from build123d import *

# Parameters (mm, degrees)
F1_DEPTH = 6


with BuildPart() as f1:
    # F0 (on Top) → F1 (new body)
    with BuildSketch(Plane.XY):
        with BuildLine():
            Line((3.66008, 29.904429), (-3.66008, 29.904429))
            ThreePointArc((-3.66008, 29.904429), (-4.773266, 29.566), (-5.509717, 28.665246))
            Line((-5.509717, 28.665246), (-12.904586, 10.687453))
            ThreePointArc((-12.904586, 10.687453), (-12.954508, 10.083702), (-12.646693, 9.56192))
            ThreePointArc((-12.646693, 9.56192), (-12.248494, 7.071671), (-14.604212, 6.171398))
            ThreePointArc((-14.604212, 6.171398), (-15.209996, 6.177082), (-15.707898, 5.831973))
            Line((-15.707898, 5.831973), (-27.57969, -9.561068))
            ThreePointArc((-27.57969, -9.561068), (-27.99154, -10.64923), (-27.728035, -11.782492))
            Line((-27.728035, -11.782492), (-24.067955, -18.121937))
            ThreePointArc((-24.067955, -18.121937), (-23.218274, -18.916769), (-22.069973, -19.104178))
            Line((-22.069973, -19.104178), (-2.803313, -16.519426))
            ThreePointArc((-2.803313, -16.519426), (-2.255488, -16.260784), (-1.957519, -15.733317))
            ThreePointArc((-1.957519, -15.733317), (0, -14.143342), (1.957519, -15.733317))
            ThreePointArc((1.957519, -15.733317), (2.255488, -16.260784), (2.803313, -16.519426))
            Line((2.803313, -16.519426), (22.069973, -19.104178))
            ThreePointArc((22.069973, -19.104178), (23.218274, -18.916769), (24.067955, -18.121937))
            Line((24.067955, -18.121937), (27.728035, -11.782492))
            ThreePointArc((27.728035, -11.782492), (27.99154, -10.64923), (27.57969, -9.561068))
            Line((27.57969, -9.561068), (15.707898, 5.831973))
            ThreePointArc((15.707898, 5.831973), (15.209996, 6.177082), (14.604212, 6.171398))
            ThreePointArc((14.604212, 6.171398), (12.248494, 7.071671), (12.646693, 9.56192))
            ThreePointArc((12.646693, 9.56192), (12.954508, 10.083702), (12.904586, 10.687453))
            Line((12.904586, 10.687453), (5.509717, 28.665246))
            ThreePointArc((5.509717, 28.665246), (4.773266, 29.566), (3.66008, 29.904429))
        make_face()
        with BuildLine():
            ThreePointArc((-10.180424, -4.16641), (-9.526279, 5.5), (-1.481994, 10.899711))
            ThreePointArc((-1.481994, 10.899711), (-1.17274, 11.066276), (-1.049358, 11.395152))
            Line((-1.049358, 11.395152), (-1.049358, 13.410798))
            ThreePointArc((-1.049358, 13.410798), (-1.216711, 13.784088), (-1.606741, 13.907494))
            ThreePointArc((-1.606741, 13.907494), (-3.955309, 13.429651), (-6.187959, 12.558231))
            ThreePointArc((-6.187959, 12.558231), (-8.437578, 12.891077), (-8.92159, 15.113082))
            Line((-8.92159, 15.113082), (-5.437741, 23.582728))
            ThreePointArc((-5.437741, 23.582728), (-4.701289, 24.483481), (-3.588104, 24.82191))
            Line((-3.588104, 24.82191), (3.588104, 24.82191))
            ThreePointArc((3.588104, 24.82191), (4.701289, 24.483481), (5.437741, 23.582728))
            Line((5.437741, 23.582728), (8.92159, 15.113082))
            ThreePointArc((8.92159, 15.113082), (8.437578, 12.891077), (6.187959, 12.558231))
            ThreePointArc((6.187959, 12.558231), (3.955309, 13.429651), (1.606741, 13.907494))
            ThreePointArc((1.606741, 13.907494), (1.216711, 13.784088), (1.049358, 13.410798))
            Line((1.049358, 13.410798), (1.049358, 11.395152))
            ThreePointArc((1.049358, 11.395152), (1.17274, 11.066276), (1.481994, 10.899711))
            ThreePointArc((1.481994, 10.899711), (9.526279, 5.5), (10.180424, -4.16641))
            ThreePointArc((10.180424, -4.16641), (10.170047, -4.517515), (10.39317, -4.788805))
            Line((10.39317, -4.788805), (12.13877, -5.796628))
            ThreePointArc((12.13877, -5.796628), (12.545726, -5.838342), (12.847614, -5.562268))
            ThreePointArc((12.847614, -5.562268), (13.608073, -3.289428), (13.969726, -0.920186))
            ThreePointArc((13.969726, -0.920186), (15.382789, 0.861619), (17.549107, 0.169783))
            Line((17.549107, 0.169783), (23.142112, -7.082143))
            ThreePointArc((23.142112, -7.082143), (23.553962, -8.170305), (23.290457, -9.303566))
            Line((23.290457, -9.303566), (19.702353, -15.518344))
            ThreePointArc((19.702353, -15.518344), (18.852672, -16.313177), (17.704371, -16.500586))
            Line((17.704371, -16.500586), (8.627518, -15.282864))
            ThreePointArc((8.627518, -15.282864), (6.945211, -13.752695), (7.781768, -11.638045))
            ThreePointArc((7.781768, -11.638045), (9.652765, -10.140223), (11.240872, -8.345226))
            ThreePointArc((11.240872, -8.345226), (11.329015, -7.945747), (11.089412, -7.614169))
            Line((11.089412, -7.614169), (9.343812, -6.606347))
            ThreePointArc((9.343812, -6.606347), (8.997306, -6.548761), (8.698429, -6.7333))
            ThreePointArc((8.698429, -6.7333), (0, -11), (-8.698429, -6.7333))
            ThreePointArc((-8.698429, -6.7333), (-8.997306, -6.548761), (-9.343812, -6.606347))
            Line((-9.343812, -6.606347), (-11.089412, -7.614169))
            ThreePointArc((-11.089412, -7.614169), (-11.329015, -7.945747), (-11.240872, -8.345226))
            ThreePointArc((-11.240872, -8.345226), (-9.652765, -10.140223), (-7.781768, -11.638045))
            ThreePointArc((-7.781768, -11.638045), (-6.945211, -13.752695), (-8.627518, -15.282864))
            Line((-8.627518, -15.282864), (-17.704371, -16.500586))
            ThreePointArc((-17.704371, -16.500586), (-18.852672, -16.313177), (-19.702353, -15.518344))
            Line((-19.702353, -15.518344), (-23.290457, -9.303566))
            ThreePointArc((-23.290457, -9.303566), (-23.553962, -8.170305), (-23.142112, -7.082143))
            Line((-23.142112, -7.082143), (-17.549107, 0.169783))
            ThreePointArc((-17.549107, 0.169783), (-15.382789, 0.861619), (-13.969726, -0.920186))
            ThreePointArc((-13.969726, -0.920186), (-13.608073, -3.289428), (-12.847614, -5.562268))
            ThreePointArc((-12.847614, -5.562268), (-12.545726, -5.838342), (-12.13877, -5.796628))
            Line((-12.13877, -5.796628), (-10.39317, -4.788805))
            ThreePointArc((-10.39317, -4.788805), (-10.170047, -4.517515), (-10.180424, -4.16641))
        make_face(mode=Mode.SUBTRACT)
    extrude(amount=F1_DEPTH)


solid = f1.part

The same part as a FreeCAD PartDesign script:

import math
import FreeCAD as App
import Part
import Sketcher

V = App.Vector

doc = App.newDocument("Part")
params = doc.addObject("Spreadsheet::Sheet", "Params")
for row, (alias, value) in enumerate([
    ("sketch1_radius", "1.999998 mm"),
    ("sketch1_radius2", "0.999998 mm"),
    ("sketch1_radius3", "2 mm"),
    ("sketch1_radius4", "0.999998 mm"),
    ("sketch1_radius5", "1.999998 mm"),
    ("pad1_length", "6 mm"),
], start=1):
    params.set(f"A{row}", alias)
    params.set(f"B{row}", "=" + value)
    params.setAlias(f"B{row}", alias)

body = doc.addObject("PartDesign::Body", "Body")

# Sketch on XY plane
sketch1 = doc.addObject("Sketcher::SketchObject", "Sketch")
body.addObject(sketch1)
sketch1.AttachmentSupport = (doc.XY_Plane, [""])
sketch1.MapMode = "FlatFace"
sketch1.addGeometry([
    Part.LineSegment(V(3.66008, 29.904429, 0), V(-3.66008, 29.904429, 0)),  # 0
    Part.ArcOfCircle(Part.Circle(V(-3.660081, 27.904431, 0), V(0, 0, 1), 1.999998), math.radians(89.999967), math.radians(157.641048)),  # 1
    Part.LineSegment(V(-5.509717, 28.665246, 0), V(-12.904586, 10.687453, 0)),  # 2
    Part.ArcOfCircle(Part.Circle(V(-11.97977, 10.307044, 0), V(0, 0, 1), 0.999998), math.radians(157.640924), math.radians(228.169865)),  # 3
    Part.ArcOfCircle(Part.Circle(V(-13.980545, 8.071672, 0), V(0, 0, 1), 2), math.radians(-108.16977), math.radians(48.169764)),  # 4
    Part.ArcOfCircle(Part.Circle(V(-14.916046, 5.221263, 0), V(0, 0, 1), 0.999998), math.radians(71.8302), math.radians(142.359068)),  # 5
    Part.LineSegment(V(-15.707898, 5.831973, 0), V(-27.57969, -9.561068, 0)),  # 6
    Part.ArcOfCircle(Part.Circle(V(-25.995986, -10.782492, 0), V(0, 0, 1), 1.999998), math.radians(142.358971), math.radians(210.000037)),  # 7
    Part.LineSegment(V(-27.728035, -11.782492, 0), V(-24.067955, -18.121937, 0)),  # 8
    Part.ArcOfCircle(Part.Circle(V(-22.335904, -17.121936, 0), V(0, 0, 1), 2.000001), math.radians(-149.99997), math.radians(-82.359019)),  # 9
    Part.LineSegment(V(-22.069973, -19.104178, 0), V(-2.803313, -16.519426, 0)),  # 10
    Part.ArcOfCircle(Part.Circle(V(-2.936277, -15.528307, 0), V(0, 0, 1), 0.999998), math.radians(-82.359074), math.radians(-11.830115)),  # 11
    Part.ArcOfCircle(Part.Circle(V(0, -16.143342, 0), V(0, 0, 1), 2), math.radians(11.830239), math.radians(168.169761)),  # 12
    Part.ArcOfCircle(Part.Circle(V(2.936277, -15.528307, 0), V(0, 0, 1), 0.999998), math.radians(-168.169885), math.radians(-97.640926)),  # 13
    Part.LineSegment(V(2.803313, -16.519426, 0), V(22.069973, -19.104178, 0)),  # 14
    Part.ArcOfCircle(Part.Circle(V(22.335904, -17.121936, 0), V(0, 0, 1), 2.000001), math.radians(-97.640981), math.radians(-30.00003)),  # 15
    Part.LineSegment(V(24.067955, -18.121937, 0), V(27.728035, -11.782492, 0)),  # 16
    Part.ArcOfCircle(Part.Circle(V(25.995986, -10.782492, 0), V(0, 0, 1), 1.999998), math.radians(-30.000037), math.radians(37.641029)),  # 17
    Part.LineSegment(V(27.57969, -9.561068, 0), V(15.707898, 5.831973, 0)),  # 18
    Part.ArcOfCircle(Part.Circle(V(14.916046, 5.221263, 0), V(0, 0, 1), 0.999998), math.radians(37.640932), math.radians(108.1698)),  # 19
    Part.ArcOfCircle(Part.Circle(V(13.980545, 8.071672, 0), V(0, 0, 1), 2), math.radians(131.830236), math.radians(288.16977)),  # 20
    Part.ArcOfCircle(Part.Circle(V(11.97977, 10.307044, 0), V(0, 0, 1), 0.999998), math.radians(-48.169865), math.radians(22.359076)),  # 21
    Part.LineSegment(V(12.904586, 10.687453, 0), V(5.509717, 28.665246, 0)),  # 22
    Part.ArcOfCircle(Part.Circle(V(3.660081, 27.904431, 0), V(0, 0, 1), 1.999998), math.radians(22.358952), math.radians(90.000033)),  # 23
    Part.ArcOfCircle(Part.Circle(V(-10.643171, -4.355792, 0), V(0, 0, 1), 0.5), math.radians(-59.999922), math.radians(22.257188)),  # 24
    Part.ArcOfCircle(Part.Circle(V(0.000001, -0.000001, 0), V(0, 0, 1), 11.000001), math.radians(97.742825), math.radians(202.25717)),  # 25
    Part.ArcOfCircle(Part.Circle(V(-1.549356, 11.39515, 0), V(0, 0, 1), 0.499998), math.radians(-82.257336), math.radians(0.000192)),  # 26
    Part.LineSegment(V(-1.049358, 11.395152, 0), V(-1.049358, 13.410798, 0)),  # 27
    Part.ArcOfCircle(Part.Circle(V(-1.549359, 13.410797, 0), V(0, 0, 1), 0.500001), math.radians(0.000119), math.radians(96.590041)),  # 28
    Part.ArcOfCircle(Part.Circle(V(0.000007, -0.000021, 0), V(0, 0, 1), 14.000022), math.radians(96.590215), math.radians(116.231358)),  # 29
    Part.ArcOfCircle(Part.Circle(V(-7.071953, 14.352264, 0), V(0, 0, 1), 2), math.radians(157.640999), math.radians(296.231356)),  # 30
    Part.LineSegment(V(-8.92159, 15.113082, 0), V(-5.437741, 23.582728, 0)),  # 31
    Part.ArcOfCircle(Part.Circle(V(-3.588103, 22.821908, 0), V(0, 0, 1), 2.000002), math.radians(90.00003), math.radians(157.640943)),  # 32
    Part.LineSegment(V(-3.588104, 24.82191, 0), V(3.588104, 24.82191, 0)),  # 33
    Part.ArcOfCircle(Part.Circle(V(3.588103, 22.821908, 0), V(0, 0, 1), 2.000002), math.radians(22.359057), math.radians(89.99997)),  # 34
    Part.LineSegment(V(5.437741, 23.582728, 0), V(8.92159, 15.113082, 0)),  # 35
    Part.ArcOfCircle(Part.Circle(V(7.071953, 14.352264, 0), V(0, 0, 1), 2), math.radians(-116.231356), math.radians(22.359001)),  # 36
    Part.ArcOfCircle(Part.Circle(V(-0.000007, -0.000021, 0), V(0, 0, 1), 14.000022), math.radians(63.768642), math.radians(83.409785)),  # 37
    Part.ArcOfCircle(Part.Circle(V(1.549359, 13.410797, 0), V(0, 0, 1), 0.500001), math.radians(83.409959), math.radians(179.999881)),  # 38
    Part.LineSegment(V(1.049358, 13.410798, 0), V(1.049358, 11.395152, 0)),  # 39
    Part.ArcOfCircle(Part.Circle(V(1.549356, 11.39515, 0), V(0, 0, 1), 0.499998), math.radians(179.999808), math.radians(262.257336)),  # 40
    Part.ArcOfCircle(Part.Circle(V(-0.000001, -0.000001, 0), V(0, 0, 1), 11.000001), math.radians(-22.25717), math.radians(82.257175)),  # 41
    Part.ArcOfCircle(Part.Circle(V(10.643171, -4.355792, 0), V(0, 0, 1), 0.5), math.radians(157.742812), math.radians(239.999922)),  # 42
    Part.LineSegment(V(10.39317, -4.788805, 0), V(12.13877, -5.796628, 0)),  # 43
    Part.ArcOfCircle(Part.Circle(V(12.388771, -5.363616, 0), V(0, 0, 1), 0.5), math.radians(-120.000106), math.radians(-23.409766)),  # 44
    Part.ArcOfCircle(Part.Circle(V(-0.000028, 0.000004, 0), V(0, 0, 1), 14.000027), math.radians(-23.40977), math.radians(-3.768639)),  # 45
    Part.ArcOfCircle(Part.Circle(V(15.965401, -1.051641, 0), V(0, 0, 1), 2), math.radians(37.640995), math.radians(176.231381)),  # 46
    Part.LineSegment(V(17.549107, 0.169783, 0), V(23.142112, -7.082143, 0)),  # 47
    Part.ArcOfCircle(Part.Circle(V(21.55841, -8.303566, 0), V(0, 0, 1), 1.999997), math.radians(-30.000046), math.radians(37.641042)),  # 48
    Part.LineSegment(V(23.290457, -9.303566, 0), V(19.702353, -15.518344, 0)),  # 49
    Part.ArcOfCircle(Part.Circle(V(17.970302, -14.518345, 0), V(0, 0, 1), 2), math.radians(-97.640993), math.radians(-29.999971)),  # 50
    Part.LineSegment(V(17.704371, -16.500586, 0), V(8.627518, -15.282864, 0)),  # 51
    Part.ArcOfCircle(Part.Circle(V(8.893449, -13.300623, 0), V(0, 0, 1), 2), math.radians(123.768617), math.radians(262.35902)),  # 52
    Part.ArcOfCircle(Part.Circle(V(-0.000013, 0.000014, 0), V(0, 0, 1), 14.000019), math.radians(-56.231355), math.radians(-36.590213)),  # 53
    Part.ArcOfCircle(Part.Circle(V(10.839412, -8.047182, 0), V(0, 0, 1), 0.500001), math.radians(-36.590158), math.radians(59.999984)),  # 54
    Part.LineSegment(V(11.089412, -7.614169, 0), V(9.343812, -6.606347, 0)),  # 55
    Part.ArcOfCircle(Part.Circle(V(9.093812, -7.039358, 0), V(0, 0, 1), 0.499999), math.radians(59.999871), math.radians(142.25721)),  # 56
    Part.ArcOfCircle(Part.Circle(V(0, 0, 0), V(0, 0, 1), 11), math.radians(-142.257182), math.radians(-37.742818)),  # 57
    Part.ArcOfCircle(Part.Circle(V(-9.093812, -7.039358, 0), V(0, 0, 1), 0.499999), math.radians(37.74279), math.radians(120.000129)),  # 58
    Part.LineSegment(V(-9.343812, -6.606347, 0), V(-11.089412, -7.614169, 0)),  # 59
    Part.ArcOfCircle(Part.Circle(V(-10.839412, -8.047182, 0), V(0, 0, 1), 0.500001), math.radians(120.000016), math.radians(216.590158)),  # 60
    Part.ArcOfCircle(Part.Circle(V(0.000013, 0.000014, 0), V(0, 0, 1), 14.000019), math.radians(-143.409787), math.radians(-123.768645)),  # 61
    Part.ArcOfCircle(Part.Circle(V(-8.893449, -13.300623, 0), V(0, 0, 1), 2), math.radians(-82.35902), math.radians(56.231383)),  # 62
    Part.LineSegment(V(-8.627518, -15.282864, 0), V(-17.704371, -16.500586, 0)),  # 63
    Part.ArcOfCircle(Part.Circle(V(-17.970302, -14.518345, 0), V(0, 0, 1), 2), math.radians(-150.000029), math.radians(-82.359007)),  # 64
    Part.LineSegment(V(-19.702353, -15.518344, 0), V(-23.290457, -9.303566, 0)),  # 65
    Part.ArcOfCircle(Part.Circle(V(-21.55841, -8.303566, 0), V(0, 0, 1), 1.999997), math.radians(142.358958), math.radians(210.000046)),  # 66
    Part.LineSegment(V(-23.142112, -7.082143, 0), V(-17.549107, 0.169783, 0)),  # 67
    Part.ArcOfCircle(Part.Circle(V(-15.965401, -1.051641, 0), V(0, 0, 1), 2), math.radians(3.768619), math.radians(142.359005)),  # 68
    Part.ArcOfCircle(Part.Circle(V(0.000028, 0.000004, 0), V(0, 0, 1), 14.000027), math.radians(-176.231361), math.radians(-156.59023)),  # 69
    Part.ArcOfCircle(Part.Circle(V(-12.388771, -5.363616, 0), V(0, 0, 1), 0.5), math.radians(-156.590234), math.radians(-59.999894)),  # 70
    Part.LineSegment(V(-12.13877, -5.796628, 0), V(-10.39317, -4.788805, 0)),  # 71
], False)
sketch1.addConstraint([
    Sketcher.Constraint("Coincident", 0, 2, 1, 1),
    Sketcher.Constraint("Coincident", 1, 2, 2, 1),
    Sketcher.Constraint("Coincident", 2, 2, 3, 1),
    Sketcher.Constraint("Coincident", 3, 2, 4, 2),
    Sketcher.Constraint("Coincident", 4, 1, 5, 1),
    Sketcher.Constraint("Coincident", 5, 2, 6, 1),
    Sketcher.Constraint("Coincident", 6, 2, 7, 1),
    Sketcher.Constraint("Coincident", 7, 2, 8, 1),
    Sketcher.Constraint("Coincident", 8, 2, 9, 1),
    Sketcher.Constraint("Coincident", 9, 2, 10, 1),
    Sketcher.Constraint("Coincident", 10, 2, 11, 1),
    Sketcher.Constraint("Coincident", 11, 2, 12, 2),
    Sketcher.Constraint("Coincident", 12, 1, 13, 1),
    Sketcher.Constraint("Coincident", 13, 2, 14, 1),
    Sketcher.Constraint("Coincident", 14, 2, 15, 1),
    Sketcher.Constraint("Coincident", 15, 2, 16, 1),
    Sketcher.Constraint("Coincident", 16, 2, 17, 1),
    Sketcher.Constraint("Coincident", 17, 2, 18, 1),
    Sketcher.Constraint("Coincident", 18, 2, 19, 1),
    Sketcher.Constraint("Coincident", 19, 2, 20, 2),
    Sketcher.Constraint("Coincident", 20, 1, 21, 1),
    Sketcher.Constraint("Coincident", 21, 2, 22, 1),
    Sketcher.Constraint("Coincident", 22, 2, 23, 1),
    Sketcher.Constraint("Coincident", 23, 2, 0, 1),
    Sketcher.Constraint("Coincident", 24, 2, 25, 2),
    Sketcher.Constraint("Coincident", 25, 1, 26, 1),
    Sketcher.Constraint("Coincident", 26, 2, 27, 1),
    Sketcher.Constraint("Coincident", 27, 2, 28, 1),
    Sketcher.Constraint("Coincident", 28, 2, 29, 1),
    Sketcher.Constraint("Coincident", 29, 2, 30, 2),
    Sketcher.Constraint("Coincident", 30, 1, 31, 1),
    Sketcher.Constraint("Coincident", 31, 2, 32, 2),
    Sketcher.Constraint("Coincident", 32, 1, 33, 1),
    Sketcher.Constraint("Coincident", 33, 2, 34, 2),
    Sketcher.Constraint("Coincident", 34, 1, 35, 1),
    Sketcher.Constraint("Coincident", 35, 2, 36, 2),
    Sketcher.Constraint("Coincident", 36, 1, 37, 1),
    Sketcher.Constraint("Coincident", 37, 2, 38, 1),
    Sketcher.Constraint("Coincident", 38, 2, 39, 1),
    Sketcher.Constraint("Coincident", 39, 2, 40, 1),
    Sketcher.Constraint("Coincident", 40, 2, 41, 2),
    Sketcher.Constraint("Coincident", 41, 1, 42, 1),
    Sketcher.Constraint("Coincident", 42, 2, 43, 1),
    Sketcher.Constraint("Coincident", 43, 2, 44, 1),
    Sketcher.Constraint("Coincident", 44, 2, 45, 1),
    Sketcher.Constraint("Coincident", 45, 2, 46, 2),
    Sketcher.Constraint("Coincident", 46, 1, 47, 1),
    Sketcher.Constraint("Coincident", 47, 2, 48, 2),
    Sketcher.Constraint("Coincident", 48, 1, 49, 1),
    Sketcher.Constraint("Coincident", 49, 2, 50, 2),
    Sketcher.Constraint("Coincident", 50, 1, 51, 1),
    Sketcher.Constraint("Coincident", 51, 2, 52, 2),
    Sketcher.Constraint("Coincident", 52, 1, 53, 1),
    Sketcher.Constraint("Coincident", 53, 2, 54, 1),
    Sketcher.Constraint("Coincident", 54, 2, 55, 1),
    Sketcher.Constraint("Coincident", 55, 2, 56, 1),
    Sketcher.Constraint("Coincident", 56, 2, 57, 2),
    Sketcher.Constraint("Coincident", 57, 1, 58, 1),
    Sketcher.Constraint("Coincident", 58, 2, 59, 1),
    Sketcher.Constraint("Coincident", 59, 2, 60, 1),
    Sketcher.Constraint("Coincident", 60, 2, 61, 1),
    Sketcher.Constraint("Coincident", 61, 2, 62, 2),
    Sketcher.Constraint("Coincident", 62, 1, 63, 1),
    Sketcher.Constraint("Coincident", 63, 2, 64, 2),
    Sketcher.Constraint("Coincident", 64, 1, 65, 1),
    Sketcher.Constraint("Coincident", 65, 2, 66, 2),
    Sketcher.Constraint("Coincident", 66, 1, 67, 1),
    Sketcher.Constraint("Coincident", 67, 2, 68, 2),
    Sketcher.Constraint("Coincident", 68, 1, 69, 1),
    Sketcher.Constraint("Coincident", 69, 2, 70, 1),
    Sketcher.Constraint("Coincident", 70, 2, 71, 1),
    Sketcher.Constraint("Coincident", 71, 2, 24, 1),
    Sketcher.Constraint("Horizontal", 0),
    Sketcher.Constraint("Vertical", 27),
    Sketcher.Constraint("Horizontal", 33),
    Sketcher.Constraint("Vertical", 39),
    Sketcher.Constraint("Coincident", 25, 3, -1, 1),
    Sketcher.Constraint("Coincident", 41, 3, -1, 1),
    Sketcher.Constraint("Coincident", 57, 3, -1, 1),
    Sketcher.Constraint("PointOnObject", 12, 3, -2),
    Sketcher.Constraint("Radius", 1, 1.999998),
    Sketcher.Constraint("Radius", 3, 0.999998),
    Sketcher.Constraint("Radius", 4, 2.0),
    Sketcher.Constraint("Radius", 5, 0.999998),
    Sketcher.Constraint("Radius", 7, 1.999998),
    Sketcher.Constraint("Radius", 9, 2.000001),
    Sketcher.Constraint("Radius", 11, 0.999998),
    Sketcher.Constraint("Radius", 12, 2.0),
    Sketcher.Constraint("Radius", 13, 0.999998),
    Sketcher.Constraint("Radius", 15, 2.000001),
    Sketcher.Constraint("Radius", 17, 1.999998),
    Sketcher.Constraint("Radius", 19, 0.999998),
    Sketcher.Constraint("Radius", 20, 2.0),
    Sketcher.Constraint("Radius", 21, 0.999998),
    Sketcher.Constraint("Radius", 23, 1.999998),
    Sketcher.Constraint("Radius", 25, 11.000001),
    Sketcher.Constraint("Radius", 30, 2.0),
    Sketcher.Constraint("Radius", 32, 2.000002),
    Sketcher.Constraint("Radius", 34, 2.000002),
    Sketcher.Constraint("Radius", 36, 2.0),
    Sketcher.Constraint("Radius", 41, 11.000001),
    Sketcher.Constraint("Radius", 46, 2.0),
    Sketcher.Constraint("Radius", 50, 2.0),
    Sketcher.Constraint("Radius", 52, 2.0),
    Sketcher.Constraint("Radius", 57, 11.0),
    Sketcher.Constraint("Radius", 62, 2.0),
    Sketcher.Constraint("Radius", 64, 2.0),
    Sketcher.Constraint("Radius", 68, 2.0),
    Sketcher.Constraint("Radius", 24, 0.5),
    Sketcher.Constraint("Radius", 28, 0.500001),
    Sketcher.Constraint("Radius", 38, 0.500001),
    Sketcher.Constraint("Radius", 42, 0.5),
    Sketcher.Constraint("Radius", 44, 0.5),
    Sketcher.Constraint("Radius", 54, 0.500001),
    Sketcher.Constraint("Radius", 56, 0.499999),
    Sketcher.Constraint("Radius", 58, 0.499999),
    Sketcher.Constraint("Radius", 60, 0.500001),
    Sketcher.Constraint("Radius", 70, 0.5),
    Sketcher.Constraint("Radius", 29, 14.000022),
    Sketcher.Constraint("Radius", 37, 14.000022),
    Sketcher.Constraint("Radius", 53, 14.000019),
    Sketcher.Constraint("Radius", 61, 14.000019),
    Sketcher.Constraint("Radius", 26, 0.499998),
    Sketcher.Constraint("Radius", 40, 0.499998),
    Sketcher.Constraint("Radius", 45, 14.000027),
    Sketcher.Constraint("Radius", 48, 1.999997),
    Sketcher.Constraint("Radius", 66, 1.999997),
    Sketcher.Constraint("Radius", 69, 14.000027),
    Sketcher.Constraint("DistanceX", 0, 2, 0, 1, 7.32016),
    Sketcher.Constraint("DistanceX", -1, 1, 46, 3, 15.965401),
    Sketcher.Constraint("DistanceX", 68, 3, -1, 1, 15.965401),
    Sketcher.Constraint("DistanceY", -1, 1, 4, 1, 6.171398),
    Sketcher.Constraint("DistanceX", 5, 2, -1, 1, 15.707898),
    Sketcher.Constraint("DistanceY", -1, 1, 19, 2, 6.171398),
    Sketcher.Constraint("DistanceY", 56, 2, -1, 1, 6.7333),
    Sketcher.Constraint("DistanceY", 57, 1, -1, 1, 6.7333),
    Sketcher.Constraint("Distance", 6, 19.439268),
    Sketcher.Constraint("Distance", 8, 7.32016),
    Sketcher.Constraint("Distance", 16, 7.32016),
    Sketcher.Constraint("Distance", 18, 19.439268),
    Sketcher.Constraint("Distance", 31, 9.158172),
    Sketcher.Constraint("Distance", 35, 9.158172),
    Sketcher.Constraint("Distance", 51, 9.158172),
    Sketcher.Constraint("Distance", 63, 9.158172),
    Sketcher.Constraint("DistanceX", 33, 1, 33, 2, 7.176208),
    Sketcher.Constraint("DistanceY", 27, 1, 27, 2, 2.015646),
    Sketcher.Constraint("DistanceY", 39, 2, 39, 1, 2.015646),
    Sketcher.Constraint("DistanceX", 1, 3, -1, 1, 3.660081),
    Sketcher.Constraint("DistanceY", -1, 1, 1, 3, 27.904431),
    Sketcher.Constraint("DistanceX", 3, 3, -1, 1, 11.97977),
    Sketcher.Constraint("DistanceY", -1, 1, 4, 3, 8.071672),
    Sketcher.Constraint("DistanceY", 7, 3, -1, 1, 10.782492),
    Sketcher.Constraint("DistanceY", 17, 3, -1, 1, 10.782492),
    Sketcher.Constraint("DistanceY", -1, 1, 20, 3, 8.071672),
    Sketcher.Constraint("DistanceX", -1, 1, 21, 3, 11.97977),
    Sketcher.Constraint("DistanceX", -1, 1, 23, 3, 3.660081),
    Sketcher.Constraint("DistanceX", 24, 3, -1, 1, 10.643171),
    Sketcher.Constraint("DistanceY", -1, 1, 26, 3, 11.39515),
    Sketcher.Constraint("DistanceY", -1, 1, 32, 3, 22.821908),
    Sketcher.Constraint("DistanceX", -1, 1, 38, 3, 1.549359),
    Sketcher.Constraint("DistanceX", -1, 1, 42, 3, 10.643171),
    Sketcher.Constraint("DistanceX", -1, 1, 44, 3, 12.388771),
    Sketcher.Constraint("DistanceY", 46, 3, -1, 1, 1.051641),
    Sketcher.Constraint("DistanceX", -1, 1, 48, 3, 21.55841),
    Sketcher.Constraint("DistanceX", -1, 1, 52, 3, 8.893449),
    Sketcher.Constraint("DistanceX", -1, 1, 54, 3, 10.839412),
    Sketcher.Constraint("DistanceX", -1, 1, 56, 3, 9.093812),
    Sketcher.Constraint("DistanceX", 58, 3, -1, 1, 9.093812),
    Sketcher.Constraint("DistanceX", 60, 3, -1, 1, 10.839412),
    Sketcher.Constraint("DistanceX", 62, 3, -1, 1, 8.893449),
    Sketcher.Constraint("DistanceX", 66, 3, -1, 1, 21.55841),
    Sketcher.Constraint("DistanceY", 68, 3, -1, 1, 1.051641),
    Sketcher.Constraint("DistanceX", 70, 3, -1, 1, 12.388771),
    Sketcher.Constraint("DistanceX", 0, 2, -1, 1, 3.66008),
    Sketcher.Constraint("DistanceY", -1, 1, 3, 2, 9.56192),
    Sketcher.Constraint("DistanceX", 4, 1, -1, 1, 14.604212),
    Sketcher.Constraint("DistanceX", 6, 2, -1, 1, 27.57969),
    Sketcher.Constraint("DistanceY", 7, 2, -1, 1, 11.782492),
    Sketcher.Constraint("DistanceY", 9, 2, -1, 1, 19.104178),
    Sketcher.Constraint("DistanceX", 11, 2, -1, 1, 1.957519),
    Sketcher.Constraint("DistanceX", -1, 1, 12, 1, 1.957519),
    Sketcher.Constraint("DistanceY", 14, 2, -1, 1, 19.104178),
    Sketcher.Constraint("DistanceX", -1, 1, 17, 2, 27.57969),
    Sketcher.Constraint("DistanceY", 17, 2, -1, 1, 9.561068),
    Sketcher.Constraint("DistanceX", -1, 1, 19, 2, 14.604212),
    Sketcher.Constraint("DistanceY", -1, 1, 20, 1, 9.56192),
    Sketcher.Constraint("DistanceY", 24, 2, -1, 1, 4.16641),
    Sketcher.Constraint("DistanceY", -1, 1, 25, 1, 10.899711),
    Sketcher.Constraint("DistanceX", 28, 2, -1, 1, 1.606741),
    Sketcher.Constraint("DistanceX", 29, 2, -1, 1, 6.187959),
    Sketcher.Constraint("DistanceY", -1, 1, 29, 2, 12.558231),
    Sketcher.Constraint("DistanceX", 30, 1, -1, 1, 8.92159),
    Sketcher.Constraint("DistanceY", -1, 1, 30, 1, 15.113082),
    Sketcher.Constraint("DistanceX", 31, 2, -1, 1, 5.437741),
    Sketcher.Constraint("DistanceX", -1, 1, 34, 1, 5.437741),
    Sketcher.Constraint("DistanceY", -1, 1, 34, 1, 23.582728),
    Sketcher.Constraint("DistanceX", -1, 1, 35, 2, 8.92159),
    Sketcher.Constraint("DistanceX", -1, 1, 36, 1, 6.187959),
    Sketcher.Constraint("DistanceY", -1, 1, 36, 1, 12.558231),
    Sketcher.Constraint("DistanceX", -1, 1, 37, 2, 1.606741),
    Sketcher.Constraint("DistanceY", -1, 1, 40, 2, 10.899711),
    Sketcher.Constraint("DistanceY", 41, 1, -1, 1, 4.16641),
    Sketcher.Constraint("DistanceX", -1, 1, 42, 2, 10.39317),
    Sketcher.Constraint("DistanceX", -1, 1, 43, 2, 12.13877),
    Sketcher.Constraint("DistanceX", -1, 1, 50, 1, 17.704371),
    Sketcher.Constraint("DistanceX", -1, 1, 54, 2, 11.089412),
    Sketcher.Constraint("DistanceY", 54, 2, -1, 1, 7.614169),
    Sketcher.Constraint("DistanceX", 58, 2, -1, 1, 9.343812),
    Sketcher.Constraint("DistanceX", 59, 2, -1, 1, 11.089412),
    Sketcher.Constraint("DistanceY", 59, 2, -1, 1, 7.614169),
    Sketcher.Constraint("DistanceX", 61, 2, -1, 1, 7.781768),
    Sketcher.Constraint("DistanceX", 63, 2, -1, 1, 17.704371),
    Sketcher.Constraint("DistanceX", 70, 2, -1, 1, 12.13877),
    Sketcher.Constraint("DistanceY", 70, 2, -1, 1, 5.796628),
    Sketcher.Constraint("DistanceX", 71, 2, -1, 1, 10.39317),
    Sketcher.Constraint("Distance", 2, 19.439268),
    Sketcher.Constraint("Distance", 10, 19.439268),
    Sketcher.Constraint("Distance", 14, 19.439268),
    Sketcher.Constraint("Distance", 22, 19.439268),
    Sketcher.Constraint("Distance", 43, 2.015645),
    Sketcher.Constraint("Distance", 47, 9.158173),
    Sketcher.Constraint("Distance", 49, 7.176208),
    Sketcher.Constraint("Distance", 55, 2.015645),
    Sketcher.Constraint("Distance", 65, 7.176208),
    Sketcher.Constraint("Distance", 67, 9.158173),
    Sketcher.Constraint("DistanceX", 5, 3, -1, 1, 14.916046),
    Sketcher.Constraint("DistanceX", 9, 3, -1, 1, 22.335904),
    Sketcher.Constraint("DistanceY", 9, 3, -1, 1, 17.121936),
    Sketcher.Constraint("DistanceX", 11, 3, -1, 1, 2.936277),
    Sketcher.Constraint("DistanceY", 11, 3, -1, 1, 15.528307),
    Sketcher.Constraint("DistanceX", -1, 1, 13, 3, 2.936277),
    Sketcher.Constraint("DistanceX", -1, 1, 15, 3, 22.335904),
    Sketcher.Constraint("DistanceY", 15, 3, -1, 1, 17.121936),
    Sketcher.Constraint("DistanceX", -1, 1, 19, 3, 14.916046),
    Sketcher.Constraint("DistanceY", -1, 1, 28, 3, 13.410797),
    Sketcher.Constraint("DistanceY", -1, 1, 38, 3, 13.410797),
    Sketcher.Constraint("DistanceY", 48, 3, -1, 1, 8.303566),
    Sketcher.Constraint("DistanceX", -1, 1, 50, 3, 17.970302),
    Sketcher.Constraint("DistanceY", 50, 3, -1, 1, 14.518345),
    Sketcher.Constraint("DistanceY", 52, 3, -1, 1, 13.300623),
    Sketcher.Constraint("DistanceY", 62, 3, -1, 1, 13.300623),
    Sketcher.Constraint("DistanceX", 64, 3, -1, 1, 17.970302),
    Sketcher.Constraint("DistanceY", 64, 3, -1, 1, 14.518345),
    Sketcher.Constraint("DistanceY", 66, 3, -1, 1, 8.303566),
    Sketcher.Constraint("DistanceX", 1, 2, -1, 1, 5.509717),
    Sketcher.Constraint("DistanceX", -1, 1, 15, 2, 24.067955),
    Sketcher.Constraint("DistanceX", -1, 1, 21, 2, 12.904586),
    Sketcher.Constraint("DistanceY", -1, 1, 26, 2, 11.395152),
    Sketcher.Constraint("DistanceX", 32, 1, -1, 1, 3.588104),
    Sketcher.Constraint("DistanceY", -1, 1, 38, 2, 13.410798),
    Sketcher.Constraint("DistanceX", -1, 1, 44, 2, 12.847614),
    Sketcher.Constraint("DistanceX", -1, 1, 45, 2, 13.969726),
    Sketcher.Constraint("DistanceX", -1, 1, 46, 1, 17.549107),
    Sketcher.Constraint("DistanceX", -1, 1, 48, 1, 23.290457),
    Sketcher.Constraint("DistanceX", -1, 1, 52, 1, 7.781768),
    Sketcher.Constraint("DistanceX", -1, 1, 53, 2, 11.240872),
    Sketcher.Constraint("DistanceX", 60, 2, -1, 1, 11.240872),
    Sketcher.Constraint("DistanceX", 64, 1, -1, 1, 19.702353),
    Sketcher.Constraint("DistanceX", 66, 1, -1, 1, 23.142112),
    Sketcher.Constraint("DistanceX", 68, 1, -1, 1, 13.969726),
    Sketcher.Constraint("DistanceX", 69, 2, -1, 1, 12.847614),
])
sketch1.setExpression("Constraints[80]", "Params.sketch1_radius")
sketch1.setExpression("Constraints[81]", "Params.sketch1_radius2")
sketch1.setExpression("Constraints[82]", "Params.sketch1_radius3")
sketch1.setExpression("Constraints[83]", "Params.sketch1_radius4")
sketch1.setExpression("Constraints[84]", "Params.sketch1_radius5")
pad1 = doc.addObject("PartDesign::Pad", "Pad")
body.addObject(pad1)
pad1.Profile = sketch1
pad1.setExpression("Length", "Params.pad1_length")

doc.recompute()
